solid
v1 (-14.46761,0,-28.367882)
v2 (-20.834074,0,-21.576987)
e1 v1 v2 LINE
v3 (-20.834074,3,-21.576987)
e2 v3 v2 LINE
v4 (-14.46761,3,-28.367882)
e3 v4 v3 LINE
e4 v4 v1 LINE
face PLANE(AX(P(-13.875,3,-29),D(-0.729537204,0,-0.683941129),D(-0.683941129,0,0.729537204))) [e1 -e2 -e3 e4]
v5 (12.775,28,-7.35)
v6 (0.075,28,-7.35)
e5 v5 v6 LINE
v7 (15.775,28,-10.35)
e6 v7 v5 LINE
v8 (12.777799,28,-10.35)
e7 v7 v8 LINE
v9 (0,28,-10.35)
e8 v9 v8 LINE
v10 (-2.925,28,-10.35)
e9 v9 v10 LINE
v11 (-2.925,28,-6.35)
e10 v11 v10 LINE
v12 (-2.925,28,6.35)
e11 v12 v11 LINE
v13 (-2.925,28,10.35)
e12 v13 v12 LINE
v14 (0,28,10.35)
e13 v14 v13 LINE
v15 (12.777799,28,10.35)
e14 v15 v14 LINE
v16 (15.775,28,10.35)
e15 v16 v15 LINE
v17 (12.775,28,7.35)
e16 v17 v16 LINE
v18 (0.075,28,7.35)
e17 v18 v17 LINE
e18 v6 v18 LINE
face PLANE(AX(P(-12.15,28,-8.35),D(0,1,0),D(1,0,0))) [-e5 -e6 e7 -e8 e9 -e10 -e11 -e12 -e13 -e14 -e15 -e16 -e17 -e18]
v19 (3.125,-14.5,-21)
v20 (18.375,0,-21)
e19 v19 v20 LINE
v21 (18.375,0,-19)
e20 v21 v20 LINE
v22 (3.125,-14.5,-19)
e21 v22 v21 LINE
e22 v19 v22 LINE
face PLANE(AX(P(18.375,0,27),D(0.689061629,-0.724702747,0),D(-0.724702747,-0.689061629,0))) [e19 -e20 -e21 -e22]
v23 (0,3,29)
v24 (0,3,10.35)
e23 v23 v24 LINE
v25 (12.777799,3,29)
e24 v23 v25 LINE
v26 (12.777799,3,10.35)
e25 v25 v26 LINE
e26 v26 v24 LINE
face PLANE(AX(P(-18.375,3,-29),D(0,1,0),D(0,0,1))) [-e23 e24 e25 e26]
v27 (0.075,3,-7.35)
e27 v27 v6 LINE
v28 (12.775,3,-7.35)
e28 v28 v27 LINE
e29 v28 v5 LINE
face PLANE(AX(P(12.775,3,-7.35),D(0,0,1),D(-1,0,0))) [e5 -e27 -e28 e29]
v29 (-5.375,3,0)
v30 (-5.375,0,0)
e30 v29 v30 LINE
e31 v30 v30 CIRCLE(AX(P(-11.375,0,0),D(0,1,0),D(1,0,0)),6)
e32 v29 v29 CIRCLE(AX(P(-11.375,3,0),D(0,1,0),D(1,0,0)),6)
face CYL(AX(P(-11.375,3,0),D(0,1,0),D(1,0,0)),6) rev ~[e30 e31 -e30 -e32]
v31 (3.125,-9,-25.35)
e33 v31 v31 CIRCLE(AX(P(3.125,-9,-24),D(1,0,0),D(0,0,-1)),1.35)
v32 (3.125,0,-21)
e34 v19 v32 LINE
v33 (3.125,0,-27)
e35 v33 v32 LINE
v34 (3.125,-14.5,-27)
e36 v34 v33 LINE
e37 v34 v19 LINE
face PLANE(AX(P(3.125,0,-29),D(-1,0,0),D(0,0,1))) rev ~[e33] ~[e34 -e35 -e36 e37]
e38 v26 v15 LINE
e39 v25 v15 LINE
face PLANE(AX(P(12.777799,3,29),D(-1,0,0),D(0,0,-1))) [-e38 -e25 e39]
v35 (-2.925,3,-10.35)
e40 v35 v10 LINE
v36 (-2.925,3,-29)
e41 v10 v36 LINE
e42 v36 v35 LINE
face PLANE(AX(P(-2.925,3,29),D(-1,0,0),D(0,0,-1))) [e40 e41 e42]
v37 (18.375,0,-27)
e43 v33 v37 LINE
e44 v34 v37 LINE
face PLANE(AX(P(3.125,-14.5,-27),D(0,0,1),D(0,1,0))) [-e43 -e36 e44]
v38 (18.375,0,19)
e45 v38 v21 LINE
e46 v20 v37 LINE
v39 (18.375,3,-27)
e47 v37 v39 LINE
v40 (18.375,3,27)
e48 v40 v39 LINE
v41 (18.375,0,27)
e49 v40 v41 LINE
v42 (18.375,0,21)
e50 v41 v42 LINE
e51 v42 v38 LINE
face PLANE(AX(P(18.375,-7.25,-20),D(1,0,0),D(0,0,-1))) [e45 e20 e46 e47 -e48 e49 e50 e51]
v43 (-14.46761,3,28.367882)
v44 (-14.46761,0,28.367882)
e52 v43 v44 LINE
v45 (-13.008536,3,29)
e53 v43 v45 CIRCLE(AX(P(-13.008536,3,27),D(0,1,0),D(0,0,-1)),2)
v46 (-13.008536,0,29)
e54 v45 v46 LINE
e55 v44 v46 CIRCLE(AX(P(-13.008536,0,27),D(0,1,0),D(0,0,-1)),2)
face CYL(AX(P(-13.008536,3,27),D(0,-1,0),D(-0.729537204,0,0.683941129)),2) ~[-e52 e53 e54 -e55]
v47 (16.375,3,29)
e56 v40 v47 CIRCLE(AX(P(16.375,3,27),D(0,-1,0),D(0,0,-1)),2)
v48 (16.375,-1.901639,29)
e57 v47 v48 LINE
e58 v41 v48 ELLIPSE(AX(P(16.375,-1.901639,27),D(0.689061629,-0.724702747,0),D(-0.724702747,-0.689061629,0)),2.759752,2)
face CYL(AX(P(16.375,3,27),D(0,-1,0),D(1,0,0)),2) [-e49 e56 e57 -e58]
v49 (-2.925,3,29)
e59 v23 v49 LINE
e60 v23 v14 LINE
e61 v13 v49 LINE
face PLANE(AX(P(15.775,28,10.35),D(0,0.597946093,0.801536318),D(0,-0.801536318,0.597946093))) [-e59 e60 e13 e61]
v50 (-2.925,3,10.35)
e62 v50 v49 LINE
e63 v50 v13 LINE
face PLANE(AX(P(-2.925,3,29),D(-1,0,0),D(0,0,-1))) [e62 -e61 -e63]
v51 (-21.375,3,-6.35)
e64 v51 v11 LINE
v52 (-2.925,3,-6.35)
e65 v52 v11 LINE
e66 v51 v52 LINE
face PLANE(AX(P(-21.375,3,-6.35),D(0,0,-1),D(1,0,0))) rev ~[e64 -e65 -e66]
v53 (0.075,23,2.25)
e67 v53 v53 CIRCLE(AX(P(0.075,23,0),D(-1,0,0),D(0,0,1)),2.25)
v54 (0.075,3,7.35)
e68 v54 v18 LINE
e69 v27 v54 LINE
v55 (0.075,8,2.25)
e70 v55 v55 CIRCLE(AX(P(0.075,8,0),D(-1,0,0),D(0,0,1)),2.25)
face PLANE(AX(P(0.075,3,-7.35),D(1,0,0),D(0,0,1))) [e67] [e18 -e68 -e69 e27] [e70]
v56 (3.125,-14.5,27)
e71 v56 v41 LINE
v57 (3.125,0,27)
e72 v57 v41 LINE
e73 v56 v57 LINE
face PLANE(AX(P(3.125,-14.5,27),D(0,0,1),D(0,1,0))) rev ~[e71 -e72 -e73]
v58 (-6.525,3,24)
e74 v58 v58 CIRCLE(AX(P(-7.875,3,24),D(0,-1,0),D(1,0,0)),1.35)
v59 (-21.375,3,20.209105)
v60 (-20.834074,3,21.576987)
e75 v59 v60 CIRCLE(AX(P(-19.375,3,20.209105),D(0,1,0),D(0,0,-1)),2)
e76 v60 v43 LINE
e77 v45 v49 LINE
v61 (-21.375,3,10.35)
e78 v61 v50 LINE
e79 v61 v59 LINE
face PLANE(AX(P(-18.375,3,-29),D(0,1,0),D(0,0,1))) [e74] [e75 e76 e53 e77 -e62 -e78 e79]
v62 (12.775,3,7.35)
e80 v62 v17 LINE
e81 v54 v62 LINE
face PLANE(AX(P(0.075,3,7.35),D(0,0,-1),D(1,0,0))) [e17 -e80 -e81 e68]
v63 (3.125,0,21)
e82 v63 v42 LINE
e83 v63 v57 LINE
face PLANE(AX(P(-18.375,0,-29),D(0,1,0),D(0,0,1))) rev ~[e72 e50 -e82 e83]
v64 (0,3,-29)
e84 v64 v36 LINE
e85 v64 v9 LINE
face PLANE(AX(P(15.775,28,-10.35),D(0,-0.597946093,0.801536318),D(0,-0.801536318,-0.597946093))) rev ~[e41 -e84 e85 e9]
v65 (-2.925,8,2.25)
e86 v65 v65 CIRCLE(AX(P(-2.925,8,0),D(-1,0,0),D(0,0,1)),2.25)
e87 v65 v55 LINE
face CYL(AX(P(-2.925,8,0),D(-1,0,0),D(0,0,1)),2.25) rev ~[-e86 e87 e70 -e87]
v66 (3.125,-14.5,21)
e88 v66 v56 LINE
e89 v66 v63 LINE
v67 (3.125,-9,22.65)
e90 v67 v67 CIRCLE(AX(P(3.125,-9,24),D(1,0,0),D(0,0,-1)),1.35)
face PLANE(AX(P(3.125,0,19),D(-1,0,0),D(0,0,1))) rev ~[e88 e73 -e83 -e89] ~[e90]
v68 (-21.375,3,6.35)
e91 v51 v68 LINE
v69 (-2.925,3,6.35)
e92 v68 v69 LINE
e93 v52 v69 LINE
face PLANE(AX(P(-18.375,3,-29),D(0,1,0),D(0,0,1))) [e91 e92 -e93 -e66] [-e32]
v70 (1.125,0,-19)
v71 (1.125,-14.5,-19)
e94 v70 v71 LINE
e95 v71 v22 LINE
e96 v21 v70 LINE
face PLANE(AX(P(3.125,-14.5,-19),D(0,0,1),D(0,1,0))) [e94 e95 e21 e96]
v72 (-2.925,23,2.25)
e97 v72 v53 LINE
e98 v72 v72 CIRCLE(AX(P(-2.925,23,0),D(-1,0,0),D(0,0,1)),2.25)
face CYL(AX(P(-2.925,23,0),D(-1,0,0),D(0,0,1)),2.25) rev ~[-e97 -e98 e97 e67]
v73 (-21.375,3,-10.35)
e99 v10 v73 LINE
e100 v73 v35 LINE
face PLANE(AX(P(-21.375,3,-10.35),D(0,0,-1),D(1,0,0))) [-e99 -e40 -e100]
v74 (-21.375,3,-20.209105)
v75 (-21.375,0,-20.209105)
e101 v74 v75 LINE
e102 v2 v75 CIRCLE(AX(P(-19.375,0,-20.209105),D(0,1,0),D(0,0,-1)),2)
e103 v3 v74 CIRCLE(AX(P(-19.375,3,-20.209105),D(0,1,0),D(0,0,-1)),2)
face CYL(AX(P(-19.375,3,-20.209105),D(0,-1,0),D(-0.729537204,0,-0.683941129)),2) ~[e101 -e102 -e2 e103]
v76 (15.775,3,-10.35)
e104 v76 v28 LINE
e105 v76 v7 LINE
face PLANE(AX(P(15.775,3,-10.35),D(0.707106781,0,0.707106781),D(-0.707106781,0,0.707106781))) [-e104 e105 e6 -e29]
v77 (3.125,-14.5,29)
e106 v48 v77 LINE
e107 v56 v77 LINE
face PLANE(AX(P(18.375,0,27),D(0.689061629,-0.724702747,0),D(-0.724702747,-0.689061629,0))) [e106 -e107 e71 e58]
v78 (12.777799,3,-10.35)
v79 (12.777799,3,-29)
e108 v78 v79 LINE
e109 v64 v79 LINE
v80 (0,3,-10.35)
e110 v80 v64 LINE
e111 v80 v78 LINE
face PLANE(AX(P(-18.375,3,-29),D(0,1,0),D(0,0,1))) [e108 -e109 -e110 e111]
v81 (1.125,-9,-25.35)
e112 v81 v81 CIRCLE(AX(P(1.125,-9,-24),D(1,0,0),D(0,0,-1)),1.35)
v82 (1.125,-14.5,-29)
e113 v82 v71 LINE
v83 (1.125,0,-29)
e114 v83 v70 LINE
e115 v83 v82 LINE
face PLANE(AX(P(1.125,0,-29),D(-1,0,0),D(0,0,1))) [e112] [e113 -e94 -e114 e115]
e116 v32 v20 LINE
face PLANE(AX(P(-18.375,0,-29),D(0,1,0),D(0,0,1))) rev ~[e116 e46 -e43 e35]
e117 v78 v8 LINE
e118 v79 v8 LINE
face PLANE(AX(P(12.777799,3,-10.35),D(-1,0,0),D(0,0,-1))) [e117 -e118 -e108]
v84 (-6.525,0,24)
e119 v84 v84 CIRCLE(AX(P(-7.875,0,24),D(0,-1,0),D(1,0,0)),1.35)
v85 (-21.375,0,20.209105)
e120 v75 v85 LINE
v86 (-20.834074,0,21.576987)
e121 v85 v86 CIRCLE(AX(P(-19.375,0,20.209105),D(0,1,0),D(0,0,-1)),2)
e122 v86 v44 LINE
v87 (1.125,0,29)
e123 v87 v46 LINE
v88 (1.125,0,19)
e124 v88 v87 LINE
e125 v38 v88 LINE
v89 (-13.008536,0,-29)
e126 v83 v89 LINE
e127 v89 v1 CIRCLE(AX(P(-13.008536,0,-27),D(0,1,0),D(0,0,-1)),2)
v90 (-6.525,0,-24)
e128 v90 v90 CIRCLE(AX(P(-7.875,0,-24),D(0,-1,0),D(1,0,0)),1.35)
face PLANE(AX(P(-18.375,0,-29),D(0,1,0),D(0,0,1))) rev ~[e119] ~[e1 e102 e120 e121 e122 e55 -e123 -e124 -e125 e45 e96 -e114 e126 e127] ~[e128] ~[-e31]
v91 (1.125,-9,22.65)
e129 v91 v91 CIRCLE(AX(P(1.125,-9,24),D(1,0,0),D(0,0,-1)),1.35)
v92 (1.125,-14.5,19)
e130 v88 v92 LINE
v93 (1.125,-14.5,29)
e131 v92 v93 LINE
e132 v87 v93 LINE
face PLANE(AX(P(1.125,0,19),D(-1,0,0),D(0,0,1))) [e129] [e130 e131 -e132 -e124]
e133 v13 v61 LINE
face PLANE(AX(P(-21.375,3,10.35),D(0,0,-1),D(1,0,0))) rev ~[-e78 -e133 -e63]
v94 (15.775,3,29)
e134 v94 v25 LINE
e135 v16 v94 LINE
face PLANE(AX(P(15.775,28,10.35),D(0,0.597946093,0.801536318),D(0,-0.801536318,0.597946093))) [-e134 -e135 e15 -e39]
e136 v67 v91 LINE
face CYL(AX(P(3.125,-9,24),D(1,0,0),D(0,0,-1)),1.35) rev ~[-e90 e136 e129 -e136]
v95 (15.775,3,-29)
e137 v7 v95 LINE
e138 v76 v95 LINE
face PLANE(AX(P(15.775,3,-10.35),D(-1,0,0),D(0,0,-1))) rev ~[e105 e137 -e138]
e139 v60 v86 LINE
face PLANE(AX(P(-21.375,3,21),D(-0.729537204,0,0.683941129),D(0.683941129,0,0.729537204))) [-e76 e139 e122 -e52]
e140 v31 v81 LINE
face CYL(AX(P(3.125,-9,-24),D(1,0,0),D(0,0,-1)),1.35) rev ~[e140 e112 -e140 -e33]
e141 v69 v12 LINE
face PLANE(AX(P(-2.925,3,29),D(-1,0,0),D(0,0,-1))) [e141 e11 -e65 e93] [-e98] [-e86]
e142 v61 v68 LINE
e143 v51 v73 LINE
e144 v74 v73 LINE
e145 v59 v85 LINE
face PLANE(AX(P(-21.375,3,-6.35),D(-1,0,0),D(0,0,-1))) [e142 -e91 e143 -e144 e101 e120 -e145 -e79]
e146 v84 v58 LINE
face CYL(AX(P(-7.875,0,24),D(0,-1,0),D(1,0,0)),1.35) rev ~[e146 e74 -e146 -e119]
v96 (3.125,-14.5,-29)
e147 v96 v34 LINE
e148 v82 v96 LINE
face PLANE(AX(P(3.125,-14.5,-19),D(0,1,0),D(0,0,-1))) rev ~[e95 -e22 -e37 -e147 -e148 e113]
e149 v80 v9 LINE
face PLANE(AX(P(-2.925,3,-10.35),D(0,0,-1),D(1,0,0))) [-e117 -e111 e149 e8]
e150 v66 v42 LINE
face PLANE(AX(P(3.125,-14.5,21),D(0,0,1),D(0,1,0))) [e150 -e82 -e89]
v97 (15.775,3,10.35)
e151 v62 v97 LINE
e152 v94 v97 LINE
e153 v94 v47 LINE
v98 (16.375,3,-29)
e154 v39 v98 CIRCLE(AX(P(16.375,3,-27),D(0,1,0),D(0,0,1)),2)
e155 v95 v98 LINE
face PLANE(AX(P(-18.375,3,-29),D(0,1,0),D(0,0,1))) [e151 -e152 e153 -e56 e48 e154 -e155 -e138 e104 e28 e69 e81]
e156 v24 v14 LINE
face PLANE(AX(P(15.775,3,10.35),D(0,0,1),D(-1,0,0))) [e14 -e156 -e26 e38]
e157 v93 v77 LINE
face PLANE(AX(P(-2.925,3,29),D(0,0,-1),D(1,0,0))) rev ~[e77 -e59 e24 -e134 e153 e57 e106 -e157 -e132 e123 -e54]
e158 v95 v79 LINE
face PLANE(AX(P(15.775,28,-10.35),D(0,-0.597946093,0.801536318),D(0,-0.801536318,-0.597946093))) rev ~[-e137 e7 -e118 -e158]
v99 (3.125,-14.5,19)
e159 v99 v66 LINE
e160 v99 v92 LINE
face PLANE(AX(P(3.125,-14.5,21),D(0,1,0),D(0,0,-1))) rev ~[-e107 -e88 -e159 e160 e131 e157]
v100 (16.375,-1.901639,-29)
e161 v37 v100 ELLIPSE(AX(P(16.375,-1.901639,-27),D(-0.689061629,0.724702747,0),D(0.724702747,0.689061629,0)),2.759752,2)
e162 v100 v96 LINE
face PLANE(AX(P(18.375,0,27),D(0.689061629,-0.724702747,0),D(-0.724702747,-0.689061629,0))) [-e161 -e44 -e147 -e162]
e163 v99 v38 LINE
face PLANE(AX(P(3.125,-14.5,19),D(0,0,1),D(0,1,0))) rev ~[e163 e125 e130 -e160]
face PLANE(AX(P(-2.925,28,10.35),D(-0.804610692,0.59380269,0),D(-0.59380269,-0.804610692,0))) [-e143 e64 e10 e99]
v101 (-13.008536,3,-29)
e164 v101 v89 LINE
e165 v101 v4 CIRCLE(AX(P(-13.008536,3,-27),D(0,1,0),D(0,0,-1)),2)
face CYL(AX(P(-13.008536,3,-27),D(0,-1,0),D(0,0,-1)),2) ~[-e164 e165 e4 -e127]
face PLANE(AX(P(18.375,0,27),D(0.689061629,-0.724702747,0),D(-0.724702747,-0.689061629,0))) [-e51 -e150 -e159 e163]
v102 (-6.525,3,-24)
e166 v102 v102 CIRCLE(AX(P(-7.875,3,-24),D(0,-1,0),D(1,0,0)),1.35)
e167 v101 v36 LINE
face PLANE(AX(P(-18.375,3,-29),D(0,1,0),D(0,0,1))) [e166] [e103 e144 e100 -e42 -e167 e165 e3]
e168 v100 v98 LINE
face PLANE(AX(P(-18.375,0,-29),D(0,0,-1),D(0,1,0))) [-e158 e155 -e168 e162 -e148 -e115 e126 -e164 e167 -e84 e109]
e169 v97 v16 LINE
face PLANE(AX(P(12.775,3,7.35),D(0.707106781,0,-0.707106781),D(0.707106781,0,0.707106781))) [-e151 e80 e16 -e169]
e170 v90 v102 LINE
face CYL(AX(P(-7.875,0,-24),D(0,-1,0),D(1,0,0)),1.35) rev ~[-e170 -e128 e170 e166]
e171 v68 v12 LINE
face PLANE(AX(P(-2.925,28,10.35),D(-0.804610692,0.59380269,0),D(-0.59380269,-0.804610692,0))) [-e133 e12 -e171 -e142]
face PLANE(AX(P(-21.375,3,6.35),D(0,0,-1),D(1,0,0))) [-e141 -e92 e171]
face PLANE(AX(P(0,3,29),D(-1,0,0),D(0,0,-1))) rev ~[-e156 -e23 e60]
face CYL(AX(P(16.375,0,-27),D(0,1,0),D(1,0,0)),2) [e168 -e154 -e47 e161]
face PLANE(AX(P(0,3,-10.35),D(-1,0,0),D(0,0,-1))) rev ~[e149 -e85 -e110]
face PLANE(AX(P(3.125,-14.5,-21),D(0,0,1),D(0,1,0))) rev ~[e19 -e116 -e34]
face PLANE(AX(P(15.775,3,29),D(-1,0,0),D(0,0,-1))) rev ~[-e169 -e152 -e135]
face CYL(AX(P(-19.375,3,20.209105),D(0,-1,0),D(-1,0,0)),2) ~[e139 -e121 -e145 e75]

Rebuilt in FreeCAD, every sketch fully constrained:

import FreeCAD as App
import Part
import Sketcher

V = App.Vector


def edges_at(feature, points):
    """Names of the edges that pass closest to the given points."""
    edges = feature.Shape.Edges
    near = lambda p: min(range(len(edges)), key=lambda i: edges[i].distToShape(Part.Vertex(*p))[0])
    return sorted({f"Edge{near(p) + 1}" for p in points})

doc = App.newDocument("Part")
body = doc.addObject("PartDesign::Body", "Body")

# Sketch on XZ plane
sketch1 = body.newObject("Sketcher::SketchObject", "Sketch")
sketch1.AttachmentSupport = (doc.getObject("XZ_Plane"), [""])
sketch1.MapMode = "FlatFace"
sketch1.addGeometry([
    Part.LineSegment(V(-18, -29, 0), V(-18, 29, 0)),
    Part.LineSegment(V(-18, 29, 0), V(18, 29, 0)),
    Part.LineSegment(V(18, 29, 0), V(18, -29, 0)),
    Part.LineSegment(V(18, -29, 0), V(-18, -29, 0)),
], False)
sketch1.addConstraint([
    Sketcher.Constraint("Coincident", 0, 2, 1, 1),
    Sketcher.Constraint("Coincident", 1, 2, 2, 1),
    Sketcher.Constraint("Coincident", 2, 2, 3, 1),
    Sketcher.Constraint("Coincident", 3, 2, 0, 1),
    Sketcher.Constraint("Vertical", 0),
    Sketcher.Constraint("Horizontal", 1),
    Sketcher.Constraint("Vertical", 2),
    Sketcher.Constraint("Horizontal", 3),
    Sketcher.Constraint("Symmetric", 0, 2, 2, 2, -1, 1),
    Sketcher.Constraint("DistanceY", 0, 1, 0, 2, 58.0),
    Sketcher.Constraint("DistanceX", 1, 1, 1, 2, 36.75),
])
pad1 = body.newObject("PartDesign::Pad", "Pad")
pad1.Profile = sketch1
pad1.Length = 3
pad1.Reversed = True

# Sketch on XZ plane
sketch2 = body.newObject("Sketcher::SketchObject", "Sketch001")
sketch2.AttachmentSupport = (doc.getObject("XZ_Plane"), [""])
sketch2.MapMode = "FlatFace"
sketch2.addGeometry([
    Part.LineSegment(V(1.1, 29, 0), V(1.1, 19, 0)),  # 0
    Part.LineSegment(V(1.1, 19, 0), V(3.1, 19, 0)),  # 1
    Part.LineSegment(V(3.1, 19, 0), V(3.1, 29, 0)),  # 2
    Part.LineSegment(V(3.1, 29, 0), V(1.1, 29, 0)),  # 3
    Part.LineSegment(V(1.1, -19, 0), V(1.1, -29, 0)),  # 4
    Part.LineSegment(V(1.1, -29, 0), V(3.1, -29, 0)),  # 5
    Part.LineSegment(V(3.1, -29, 0), V(3.1, -19, 0)),  # 6
    Part.LineSegment(V(3.1, -19, 0), V(1.1, -19, 0)),  # 7
], False)
sketch2.addConstraint([
    Sketcher.Constraint("Coincident", 0, 2, 1, 1),
    Sketcher.Constraint("Coincident", 1, 2, 2, 1),
    Sketcher.Constraint("Coincident", 2, 2, 3, 1),
    Sketcher.Constraint("Coincident", 3, 2, 0, 1),
    Sketcher.Constraint("Coincident", 4, 2, 5, 1),
    Sketcher.Constraint("Coincident", 5, 2, 6, 1),
    Sketcher.Constraint("Coincident", 6, 2, 7, 1),
    Sketcher.Constraint("Coincident", 7, 2, 4, 1),
    Sketcher.Constraint("Vertical", 0),
    Sketcher.Constraint("Horizontal", 1),
    Sketcher.Constraint("Vertical", 2),
    Sketcher.Constraint("Horizontal", 3),
    Sketcher.Constraint("Vertical", 4),
    Sketcher.Constraint("Horizontal", 5),
    Sketcher.Constraint("Vertical", 6),
    Sketcher.Constraint("Horizontal", 7),
    Sketcher.Constraint("Symmetric", 3, 2, 4, 2, -1),
    Sketcher.Constraint("Symmetric", 1, 2, 6, 2, -1),
    Sketcher.Constraint("DistanceX", 1, 1, 1, 2, 2.0),
    Sketcher.Constraint("DistanceY", 0, 2, 0, 1, 10.0),
    Sketcher.Constraint("DistanceY", -1, 1, 0, 2, 19.0),
    Sketcher.Constraint("DistanceX", -1, 1, 0, 2, 1.125),
])
pad2 = body.newObject("PartDesign::Pad", "Pad001")
pad2.Profile = sketch2
pad2.Length = 14.5

# Sketch on YZ plane
sketch3 = body.newObject("Sketcher::SketchObject", "Sketch002")
sketch3.AttachmentSupport = (doc.getObject("YZ_Plane"), [""])
sketch3.MapMode = "FlatFace"
sketch3.AttachmentOffset = App.Placement(V(0, 0, 3.125), App.Rotation())
sketch3.addGeometry([
    Part.Circle(V(-9, 24, 0), V(0, 0, 1), 1.4),
    Part.Circle(V(-9, -24, 0), V(0, 0, 1), 1.4),
], False)
sketch3.addConstraint([
    Sketcher.Constraint("Equal", 0, 1),
    Sketcher.Constraint("Symmetric", 0, 3, 1, 3, -1),
    Sketcher.Constraint("Diameter", 0, 2.7),
    Sketcher.Constraint("DistanceX", 0, 3, -1, 1, 9.0),
    Sketcher.Constraint("DistanceY", -1, 1, 0, 3, 24.0),
])
pocket1 = body.newObject("PartDesign::Pocket", "Pocket")
pocket1.Profile = sketch3
pocket1.Length = 2

# Sketch on XZ plane
sketch4 = body.newObject("Sketcher::SketchObject", "Sketch003")
sketch4.AttachmentSupport = (doc.getObject("XZ_Plane"), [""])
sketch4.MapMode = "FlatFace"
sketch4.AttachmentOffset = App.Placement(V(0, 0, -3), App.Rotation())
sketch4.addGeometry([
    Part.LineSegment(V(0.1, -7.3, 0), V(12.8, -7.3, 0)),  # 0
    Part.LineSegment(V(12.8, -7.3, 0), V(15.8, -10.3, 0)),  # 1
    Part.LineSegment(V(15.8, -10.3, 0), V(-2.9, -10.3, 0)),  # 2
    Part.LineSegment(V(-2.9, -10.3, 0), V(-2.9, 10.3, 0)),  # 3
    Part.LineSegment(V(-2.9, 10.3, 0), V(15.8, 10.3, 0)),  # 4
    Part.LineSegment(V(15.8, 10.3, 0), V(12.8, 7.3, 0)),  # 5
    Part.LineSegment(V(12.8, 7.3, 0), V(0.1, 7.3, 0)),  # 6
    Part.LineSegment(V(0.1, 7.3, 0), V(0.1, -7.3, 0)),  # 7
], False)
sketch4.addConstraint([
    Sketcher.Constraint("Coincident", 0, 2, 1, 1),
    Sketcher.Constraint("Coincident", 1, 2, 2, 1),
    Sketcher.Constraint("Coincident", 2, 2, 3, 1),
    Sketcher.Constraint("Coincident", 3, 2, 4, 1),
    Sketcher.Constraint("Coincident", 4, 2, 5, 1),
    Sketcher.Constraint("Coincident", 5, 2, 6, 1),
    Sketcher.Constraint("Coincident", 6, 2, 7, 1),
    Sketcher.Constraint("Coincident", 7, 2, 0, 1),
    Sketcher.Constraint("Horizontal", 0),
    Sketcher.Constraint("Horizontal", 2),
    Sketcher.Constraint("Vertical", 3),
    Sketcher.Constraint("Horizontal", 4),
    Sketcher.Constraint("Horizontal", 6),
    Sketcher.Constraint("Vertical", 7),
    Sketcher.Constraint("Symmetric", 1, 2, 4, 2, -1),
    Sketcher.Constraint("Symmetric", 0, 2, 5, 2, -1),
    Sketcher.Constraint("Perpendicular", 1, 5),
    Sketcher.Constraint("DistanceX", 0, 1, 0, 2, 12.7),
    Sketcher.Constraint("DistanceX", 2, 2, 2, 1, 18.7),
    Sketcher.Constraint("DistanceY", 3, 1, 3, 2, 20.7),
    Sketcher.Constraint("DistanceY", 7, 2, 7, 1, 14.7),
    Sketcher.Constraint("DistanceX", -1, 1, 0, 2, 12.775),
])
pad3 = body.newObject("PartDesign::Pad", "Pad002")
pad3.Profile = sketch4
pad3.Length = 25
pad3.Reversed = True

# Sketch on YZ plane
sketch5 = body.newObject("Sketcher::SketchObject", "Sketch004")
sketch5.AttachmentSupport = (doc.getObject("YZ_Plane"), [""])
sketch5.MapMode = "FlatFace"
sketch5.AttachmentOffset = App.Placement(V(0, 0, -2.925), App.Rotation())
sketch5.addGeometry([
    Part.Circle(V(8, 0, 0), V(0, 0, 1), 2.2),
    Part.Circle(V(23, 0, 0), V(0, 0, 1), 2.2),
], False)
sketch5.addConstraint([
    Sketcher.Constraint("Equal", 0, 1),
    Sketcher.Constraint("PointOnObject", 0, 3, -1),
    Sketcher.Constraint("PointOnObject", 1, 3, -1),
    Sketcher.Constraint("Diameter", 0, 4.5),
    Sketcher.Constraint("DistanceX", -1, 1, 0, 3, 8.0),
    Sketcher.Constraint("DistanceX", -1, 1, 1, 3, 23.0),
])
pocket2 = body.newObject("PartDesign::Pocket", "Pocket001")
pocket2.Profile = sketch5
pocket2.Length = 3
pocket2.Reversed = True

# Sketch on YZ plane
sketch6 = body.newObject("Sketcher::SketchObject", "Sketch005")
sketch6.AttachmentSupport = (doc.getObject("YZ_Plane"), [""])
sketch6.MapMode = "FlatFace"
sketch6.AttachmentOffset = App.Placement(V(0, 0, -18.375), App.Rotation())
sketch6.addGeometry([
    Part.LineSegment(V(3, -29, 0), V(0, -29, 0)),
    Part.LineSegment(V(0, -29, 0), V(0, 29, 0)),
    Part.LineSegment(V(0, 29, 0), V(3, 29, 0)),
    Part.LineSegment(V(3, 29, 0), V(3, -29, 0)),
], False)
sketch6.addConstraint([
    Sketcher.Constraint("Coincident", 0, 2, 1, 1),
    Sketcher.Constraint("Coincident", 1, 2, 2, 1),
    Sketcher.Constraint("Coincident", 2, 2, 3, 1),
    Sketcher.Constraint("Coincident", 3, 2, 0, 1),
    Sketcher.Constraint("Horizontal", 0),
    Sketcher.Constraint("Vertical", 1),
    Sketcher.Constraint("Horizontal", 2),
    Sketcher.Constraint("Vertical", 3),
    Sketcher.Constraint("Symmetric", 0, 2, 1, 2, -1, 1),
    Sketcher.Constraint("DistanceX", 0, 2, 0, 1, 3.0),
    Sketcher.Constraint("DistanceY", 1, 1, 1, 2, 58.0),
])
pad4 = body.newObject("PartDesign::Pad", "Pad003")
pad4.Profile = sketch6
pad4.Length = 3
pad4.Reversed = True

# Sketch on XZ plane
sketch7 = body.newObject("Sketcher::SketchObject", "Sketch006")
sketch7.AttachmentSupport = (doc.getObject("XZ_Plane"), [""])
sketch7.MapMode = "FlatFace"
sketch7.AttachmentOffset = App.Placement(V(0, 0, -3), App.Rotation())
sketch7.addGeometry(Part.Circle(V(-11, 0, 0), V(0, 0, 1), 6), False)
sketch7.addConstraint([
    Sketcher.Constraint("PointOnObject", 0, 3, -1),
    Sketcher.Constraint("Diameter", 0, 12.0),
    Sketcher.Constraint("DistanceX", 0, 3, -1, 1, 11.375),
])
pocket3 = body.newObject("PartDesign::Pocket", "Pocket002")
pocket3.Profile = sketch7
pocket3.Length = 3
pocket3.Reversed = True

# Sketch on XZ plane
sketch8 = body.newObject("Sketcher::SketchObject", "Sketch007")
sketch8.AttachmentSupport = (doc.getObject("XZ_Plane"), [""])
sketch8.MapMode = "FlatFace"
sketch8.AttachmentOffset = App.Placement(V(0, 0, -3), App.Rotation())
sketch8.addGeometry([
    Part.LineSegment(V(-21.4, 21, 0), V(-21.4, -21, 0)),  # 0
    Part.LineSegment(V(-21.4, -21, 0), V(-13.9, -29, 0)),  # 1
    Part.LineSegment(V(-13.9, -29, 0), V(-13.9, -36.1, 0)),  # 2
    Part.LineSegment(V(-13.9, -36.1, 0), V(-41.6, -35.8, 0)),  # 3
    Part.LineSegment(V(-41.6, -35.8, 0), V(-32.6, 32.6, 0)),  # 4
    Part.LineSegment(V(-32.6, 32.6, 0), V(-11.2, 32.6, 0)),  # 5
    Part.LineSegment(V(-11.2, 32.6, 0), V(-13.9, 29, 0)),  # 6
    Part.LineSegment(V(-13.9, 29, 0), V(-21.4, 21, 0)),  # 7
], False)
sketch8.addConstraint([
    Sketcher.Constraint("Coincident", 0, 2, 1, 1),
    Sketcher.Constraint("Coincident", 1, 2, 2, 1),
    Sketcher.Constraint("Coincident", 2, 2, 3, 1),
    Sketcher.Constraint("Coincident", 3, 2, 4, 1),
    Sketcher.Constraint("Coincident", 4, 2, 5, 1),
    Sketcher.Constraint("Coincident", 5, 2, 6, 1),
    Sketcher.Constraint("Coincident", 6, 2, 7, 1),
    Sketcher.Constraint("Coincident", 7, 2, 0, 1),
    Sketcher.Constraint("Vertical", 0),
    Sketcher.Constraint("Vertical", 2),
    Sketcher.Constraint("Horizontal", 5),
    Sketcher.Constraint("Symmetric", 1, 2, 6, 2, -1),
    Sketcher.Constraint("Equal", 1, 7),
    Sketcher.Constraint("DistanceY", 0, 2, 0, 1, 42.0),
    Sketcher.Constraint("DistanceY", 1, 2, -1, 1, 29.0),
    Sketcher.Constraint("DistanceX", 0, 2, 1, 2, 7.5),
    Sketcher.Constraint("DistanceX", 0, 2, -1, 1, 21.375),
    Sketcher.Constraint("DistanceY", 3, 2, -1, 1, 35.783998),
    Sketcher.Constraint("DistanceX", 5, 1, 5, 2, 21.393761),
    Sketcher.Constraint("Distance", 3, 27.76894),
    Sketcher.Constraint("DistanceY", 2, 2, 2, 1, 7.078996),
    Sketcher.Constraint("DistanceX", 4, 2, -1, 1, 32.637528),
    Sketcher.Constraint("Distance", 4, 68.961064),
])
pocket4 = body.newObject("PartDesign::Pocket", "Pocket003")
pocket4.Profile = sketch8
pocket4.Length = 3
pocket4.Reversed = True

# Sketch on YZ plane
sketch9 = body.newObject("Sketcher::SketchObject", "Sketch008")
sketch9.AttachmentSupport = (doc.getObject("YZ_Plane"), [""])
sketch9.MapMode = "FlatFace"
sketch9.AttachmentOffset = App.Placement(V(0, 0, 3.125), App.Rotation())
sketch9.addGeometry([
    Part.LineSegment(V(0, -19, 0), V(-14.5, -19, 0)),  # 0
    Part.LineSegment(V(-14.5, -19, 0), V(-14.5, -21, 0)),  # 1
    Part.LineSegment(V(-14.5, -21, 0), V(0, -21, 0)),  # 2
    Part.LineSegment(V(0, -21, 0), V(0, -19, 0)),  # 3
    Part.LineSegment(V(0, -27, 0), V(-14.5, -27, 0)),  # 4
    Part.LineSegment(V(-14.5, -27, 0), V(-14.5, -29, 0)),  # 5
    Part.LineSegment(V(-14.5, -29, 0), V(0, -29, 0)),  # 6
    Part.LineSegment(V(0, -29, 0), V(0, -27, 0)),  # 7
    Part.LineSegment(V(0, 29, 0), V(-14.5, 29, 0)),  # 8
    Part.LineSegment(V(-14.5, 29, 0), V(-14.5, 27, 0)),  # 9
    Part.LineSegment(V(-14.5, 27, 0), V(0, 27, 0)),  # 10
    Part.LineSegment(V(0, 27, 0), V(0, 29, 0)),  # 11
    Part.LineSegment(V(0, 21, 0), V(-14.5, 21, 0)),  # 12
    Part.LineSegment(V(-14.5, 21, 0), V(-14.5, 19, 0)),  # 13
    Part.LineSegment(V(-14.5, 19, 0), V(0, 19, 0)),  # 14
    Part.LineSegment(V(0, 19, 0), V(0, 21, 0)),  # 15
], False)
sketch9.addConstraint([
    Sketcher.Constraint("Coincident", 0, 2, 1, 1),
    Sketcher.Constraint("Coincident", 1, 2, 2, 1),
    Sketcher.Constraint("Coincident", 2, 2, 3, 1),
    Sketcher.Constraint("Coincident", 3, 2, 0, 1),
    Sketcher.Constraint("Coincident", 4, 2, 5, 1),
    Sketcher.Constraint("Coincident", 5, 2, 6, 1),
    Sketcher.Constraint("Coincident", 6, 2, 7, 1),
    Sketcher.Constraint("Coincident", 7, 2, 4, 1),
    Sketcher.Constraint("Coincident", 8, 2, 9, 1),
    Sketcher.Constraint("Coincident", 9, 2, 10, 1),
    Sketcher.Constraint("Coincident", 10, 2, 11, 1),
    Sketcher.Constraint("Coincident", 11, 2, 8, 1),
    Sketcher.Constraint("Coincident", 12, 2, 13, 1),
    Sketcher.Constraint("Coincident", 13, 2, 14, 1),
    Sketcher.Constraint("Coincident", 14, 2, 15, 1),
    Sketcher.Constraint("Coincident", 15, 2, 12, 1),
    Sketcher.Constraint("Horizontal", 0),
    Sketcher.Constraint("Vertical", 1),
    Sketcher.Constraint("Horizontal", 2),
    Sketcher.Constraint("Vertical", 3),
    Sketcher.Constraint("Horizontal", 4),
    Sketcher.Constraint("Vertical", 5),
    Sketcher.Constraint("Horizontal", 6),
    Sketcher.Constraint("Vertical", 7),
    Sketcher.Constraint("Horizontal", 8),
    Sketcher.Constraint("Vertical", 9),
    Sketcher.Constraint("Horizontal", 10),
    Sketcher.Constraint("Vertical", 11),
    Sketcher.Constraint("Horizontal", 12),
    Sketcher.Constraint("Vertical", 13),
    Sketcher.Constraint("Horizontal", 14),
    Sketcher.Constraint("Vertical", 15),
    Sketcher.Constraint("Symmetric", 7, 2, 10, 2, -1, 1),
    Sketcher.Constraint("Symmetric", 3, 2, 14, 2, -1, 1),
    Sketcher.Constraint("Symmetric", 5, 2, 8, 2, -1),
    Sketcher.Constraint("Symmetric", 1, 2, 12, 2, -1),
    Sketcher.Constraint("PointOnObject", 2, 2, -2),
    Sketcher.Constraint("PointOnObject", 6, 2, -2),
    Sketcher.Constraint("Vertical", 1, 2, 4, 2),
    Sketcher.Constraint("Equal", 3, 5),
    Sketcher.Constraint("DistanceY", 1, 2, 1, 1, 2.0),
    Sketcher.Constraint("DistanceX", 0, 2, 0, 1, 14.5),
    Sketcher.Constraint("DistanceY", 0, 2, -1, 1, 19.0),
    Sketcher.Constraint("DistanceY", 4, 2, -1, 1, 27.0),
])
pad5 = body.newObject("PartDesign::Pad", "Pad004")
pad5.Profile = sketch9
pad5.Length = 15.25

# Sketch on XY plane
sketch10 = body.newObject("Sketcher::SketchObject", "Sketch009")
sketch10.AttachmentSupport = (doc.getObject("XY_Plane"), [""])
sketch10.MapMode = "FlatFace"
sketch10.AttachmentOffset = App.Placement(V(0, 0, 27), App.Rotation())
sketch10.addGeometry([
    Part.LineSegment(V(3, -14, 0), V(18, 0, 0)),  # 0
    Part.LineSegment(V(18, 0, 0), V(28, 1, 0)),  # 1
    Part.LineSegment(V(28, 1, 0), V(24, -22, 0)),  # 2
    Part.LineSegment(V(24, -22, 0), V(4, -23, 0)),  # 3
    Part.LineSegment(V(4, -23, 0), V(3, -14, 0)),  # 4
], False)
sketch10.addConstraint([
    Sketcher.Constraint("Coincident", 0, 2, 1, 1),
    Sketcher.Constraint("Coincident", 1, 2, 2, 1),
    Sketcher.Constraint("Coincident", 2, 2, 3, 1),
    Sketcher.Constraint("Coincident", 3, 2, 4, 1),
    Sketcher.Constraint("Coincident", 4, 2, 0, 1),
    Sketcher.Constraint("PointOnObject", 0, 2, -1),
    Sketcher.Constraint("DistanceY", 4, 2, -1, 1, 14.5),
    Sketcher.Constraint("DistanceX", 4, 2, 0, 2, 15.25),
    Sketcher.Constraint("DistanceX", -1, 1, 0, 2, 18.375),
    Sketcher.Constraint("Distance", 1, 9.3514),
    Sketcher.Constraint("Distance", 4, 8.70329),
    Sketcher.Constraint("DistanceY", -1, 1, 1, 2, 0.85574),
    Sketcher.Constraint("DistanceY", 3, 2, -1, 1, 23.175648),
    Sketcher.Constraint("DistanceY", 2, 2, 1, 2, 22.991138),
    Sketcher.Constraint("Distance", 2, 23.239408),
])
pocket5 = body.newObject("PartDesign::Pocket", "Pocket004")
pocket5.Profile = sketch10
pocket5.Length = 160
pocket5.Midplane = True

# Sketch on XZ plane
sketch11 = body.newObject("Sketcher::SketchObject", "Sketch010")
sketch11.AttachmentSupport = (doc.getObject("XZ_Plane"), [""])
sketch11.MapMode = "FlatFace"
sketch11.addGeometry([
    Part.Circle(V(-7.9, 24, 0), V(0, 0, 1), 1.4),
    Part.Circle(V(-7.9, -24, 0), V(0, 0, 1), 1.4),
], False)
sketch11.addConstraint([
    Sketcher.Constraint("Equal", 0, 1),
    Sketcher.Constraint("Symmetric", 0, 3, 1, 3, -1),
    Sketcher.Constraint("Diameter", 0, 2.7),
    Sketcher.Constraint("DistanceY", -1, 1, 0, 3, 24.0),
    Sketcher.Constraint("DistanceX", 0, 3, -1, 1, 7.875),
])
pocket6 = body.newObject("PartDesign::Pocket", "Pocket005")
pocket6.Profile = sketch11
pocket6.Length = 3
doc.recompute()

fillet = body.newObject("PartDesign::Fillet", "Fillet")
fillet.Base = (pocket6, edges_at(pocket6, [
    (-21.375, 1.5, 21),
    (-13.875, 1.5, 29),
    (-21.375, 1.5, -21),
    (-13.875, 1.5, -29),
    (18.375, 1.5, 29),
    (18.375, 1.5, -29),
]))
fillet.Radius = 2

# Sketch on XZ plane
sketch12 = body.newObject("Sketcher::SketchObject", "Sketch011")
sketch12.AttachmentSupport = (doc.getObject("XZ_Plane"), [""])
sketch12.MapMode = "FlatFace"
sketch12.AttachmentOffset = App.Placement(V(0, 0, -3), App.Rotation())
sketch12.addGeometry([
    Part.LineSegment(V(-2.9, 10.3, 0), V(-2.9, 29, 0)),  # 0
    Part.LineSegment(V(-2.9, 29, 0), V(0, 29, 0)),  # 1
    Part.LineSegment(V(0, 29, 0), V(0, 10.3, 0)),  # 2
    Part.LineSegment(V(0, 10.3, 0), V(-2.9, 10.3, 0)),  # 3
    Part.LineSegment(V(12.8, 10.3, 0), V(12.8, 29, 0)),  # 4
    Part.LineSegment(V(12.8, 29, 0), V(15.8, 29, 0)),  # 5
    Part.LineSegment(V(15.8, 29, 0), V(15.8, 10.3, 0)),  # 6
    Part.LineSegment(V(15.8, 10.3, 0), V(12.8, 10.3, 0)),  # 7
    Part.LineSegment(V(-2.9, -29, 0), V(-2.9, -10.3, 0)),  # 8
    Part.LineSegment(V(-2.9, -10.3, 0), V(0, -10.3, 0)),  # 9
    Part.LineSegment(V(0, -10.3, 0), V(0, -29, 0)),  # 10
    Part.LineSegment(V(0, -29, 0), V(-2.9, -29, 0)),  # 11
    Part.LineSegment(V(12.8, -29, 0), V(12.8, -10.3, 0)),  # 12
    Part.LineSegment(V(12.8, -10.3, 0), V(15.8, -10.3, 0)),  # 13
    Part.LineSegment(V(15.8, -10.3, 0), V(15.8, -29, 0)),  # 14
    Part.LineSegment(V(15.8, -29, 0), V(12.8, -29, 0)),  # 15
], False)
sketch12.addConstraint([
    Sketcher.Constraint("Coincident", 0, 2, 1, 1),
    Sketcher.Constraint("Coincident", 1, 2, 2, 1),
    Sketcher.Constraint("Coincident", 2, 2, 3, 1),
    Sketcher.Constraint("Coincident", 3, 2, 0, 1),
    Sketcher.Constraint("Coincident", 4, 2, 5, 1),
    Sketcher.Constraint("Coincident", 5, 2, 6, 1),
    Sketcher.Constraint("Coincident", 6, 2, 7, 1),
    Sketcher.Constraint("Coincident", 7, 2, 4, 1),
    Sketcher.Constraint("Coincident", 8, 2, 9, 1),
    Sketcher.Constraint("Coincident", 9, 2, 10, 1),
    Sketcher.Constraint("Coincident", 10, 2, 11, 1),
    Sketcher.Constraint("Coincident", 11, 2, 8, 1),
    Sketcher.Constraint("Coincident", 12, 2, 13, 1),
    Sketcher.Constraint("Coincident", 13, 2, 14, 1),
    Sketcher.Constraint("Coincident", 14, 2, 15, 1),
    Sketcher.Constraint("Coincident", 15, 2, 12, 1),
    Sketcher.Constraint("Vertical", 0),
    Sketcher.Constraint("Horizontal", 1),
    Sketcher.Constraint("Vertical", 2),
    Sketcher.Constraint("Horizontal", 3),
    Sketcher.Constraint("Vertical", 4),
    Sketcher.Constraint("Horizontal", 5),
    Sketcher.Constraint("Vertical", 6),
    Sketcher.Constraint("Horizontal", 7),
    Sketcher.Constraint("Vertical", 8),
    Sketcher.Constraint("Horizontal", 9),
    Sketcher.Constraint("Vertical", 10),
    Sketcher.Constraint("Horizontal", 11),
    Sketcher.Constraint("Vertical", 12),
    Sketcher.Constraint("Horizontal", 13),
    Sketcher.Constraint("Vertical", 14),
    Sketcher.Constraint("Horizontal", 15),
    Sketcher.Constraint("Symmetric", 2, 2, 9, 2, -1, 1),
    Sketcher.Constraint("Symmetric", 1, 2, 10, 2, -1),
    Sketcher.Constraint("Symmetric", 7, 2, 12, 2, -1),
    Sketcher.Constraint("Symmetric", 5, 2, 14, 2, -1),
    Sketcher.Constraint("Horizontal", 1, 2, 4, 2),
    Sketcher.Constraint("Horizontal", 3, 2, 6, 2),
    Sketcher.Constraint("Vertical", 3, 2, 8, 2),
    Sketcher.Constraint("DistanceY", -1, 1, 0, 2, 29.0),
    Sketcher.Constraint("DistanceY", 0, 1, 0, 2, 18.65),
    Sketcher.Constraint("DistanceX", 0, 2, 5, 2, 18.7),
    Sketcher.Constraint("DistanceX", 1, 1, 1, 2, 2.925),
    Sketcher.Constraint("DistanceX", 5, 1, 5, 2, 2.997201),
])
pad6 = body.newObject("PartDesign::Pad", "Pad005")
pad6.Profile = sketch12
pad6.Length = 25
pad6.Reversed = True

# Sketch on YZ plane
sketch13 = body.newObject("Sketcher::SketchObject", "Sketch012")
sketch13.AttachmentSupport = (doc.getObject("YZ_Plane"), [""])
sketch13.MapMode = "FlatFace"
sketch13.AttachmentOffset = App.Placement(V(0, 0, 15.775), App.Rotation())
sketch13.addGeometry([
    Part.LineSegment(V(3, 29, 0), V(28, 10.3, 0)),  # 0
    Part.LineSegment(V(28, 10.3, 0), V(32.4, 10.3, 0)),  # 1
    Part.LineSegment(V(32.4, 10.3, 0), V(32.4, 37.6, 0)),  # 2
    Part.LineSegment(V(32.4, 37.6, 0), V(3, 37.6, 0)),  # 3
    Part.LineSegment(V(3, 37.6, 0), V(3, 29, 0)),  # 4
    Part.LineSegment(V(32.4, -37.6, 0), V(32.4, -10.3, 0)),  # 5
    Part.LineSegment(V(32.4, -10.3, 0), V(28, -10.3, 0)),  # 6
    Part.LineSegment(V(28, -10.3, 0), V(3, -29, 0)),  # 7
    Part.LineSegment(V(3, -29, 0), V(3, -37.6, 0)),  # 8
    Part.LineSegment(V(3, -37.6, 0), V(32.4, -37.6, 0)),  # 9
], False)
sketch13.addConstraint([
    Sketcher.Constraint("Coincident", 0, 2, 1, 1),
    Sketcher.Constraint("Coincident", 1, 2, 2, 1),
    Sketcher.Constraint("Coincident", 2, 2, 3, 1),
    Sketcher.Constraint("Coincident", 3, 2, 4, 1),
    Sketcher.Constraint("Coincident", 4, 2, 0, 1),
    Sketcher.Constraint("Coincident", 5, 2, 6, 1),
    Sketcher.Constraint("Coincident", 6, 2, 7, 1),
    Sketcher.Constraint("Coincident", 7, 2, 8, 1),
    Sketcher.Constraint("Coincident", 8, 2, 9, 1),
    Sketcher.Constraint("Coincident", 9, 2, 5, 1),
    Sketcher.Constraint("Horizontal", 1),
    Sketcher.Constraint("Vertical", 2),
    Sketcher.Constraint("Horizontal", 3),
    Sketcher.Constraint("Vertical", 4),
    Sketcher.Constraint("Vertical", 5),
    Sketcher.Constraint("Horizontal", 6),
    Sketcher.Constraint("Vertical", 8),
    Sketcher.Constraint("Horizontal", 9),
    Sketcher.Constraint("Symmetric", 1, 2, 5, 2, -1),
    Sketcher.Constraint("Symmetric", 4, 2, 7, 2, -1),
    Sketcher.Constraint("Vertical", 0, 2, 6, 2),
    Sketcher.Constraint("Equal", 2, 5),
    Sketcher.Constraint("DistanceX", -1, 1, 0, 2, 28.0),
    Sketcher.Constraint("DistanceX", -1, 1, 3, 2, 3.0),
    Sketcher.Constraint("DistanceY", -1, 1, 4, 2, 29.0),
    Sketcher.Constraint("DistanceY", 5, 2, 1, 2, 20.7),
    Sketcher.Constraint("DistanceX", 1, 1, 1, 2, 4.391457),
    Sketcher.Constraint("DistanceY", 2, 1, 2, 2, 27.267707),
])
pocket7 = body.newObject("PartDesign::Pocket", "Pocket006")
pocket7.Profile = sketch13
pocket7.Length = 18.7

# Sketch on XZ plane
sketch14 = body.newObject("Sketcher::SketchObject", "Sketch013")
sketch14.AttachmentSupport = (doc.getObject("XZ_Plane"), [""])
sketch14.MapMode = "FlatFace"
sketch14.AttachmentOffset = App.Placement(V(0, 0, -3), App.Rotation())
sketch14.addGeometry([
    Part.LineSegment(V(-21.4, -10.3, 0), V(-21.4, -6.3, 0)),  # 0
    Part.LineSegment(V(-21.4, -6.3, 0), V(-2.9, -6.3, 0)),  # 1
    Part.LineSegment(V(-2.9, -6.3, 0), V(-2.9, -10.3, 0)),  # 2
    Part.LineSegment(V(-2.9, -10.3, 0), V(-21.4, -10.3, 0)),  # 3
    Part.LineSegment(V(-21.4, 6.3, 0), V(-21.4, 10.3, 0)),  # 4
    Part.LineSegment(V(-21.4, 10.3, 0), V(-2.9, 10.3, 0)),  # 5
    Part.LineSegment(V(-2.9, 10.3, 0), V(-2.9, 6.3, 0)),  # 6
    Part.LineSegment(V(-2.9, 6.3, 0), V(-21.4, 6.3, 0)),  # 7
], False)
sketch14.addConstraint([
    Sketcher.Constraint("Coincident", 0, 2, 1, 1),
    Sketcher.Constraint("Coincident", 1, 2, 2, 1),
    Sketcher.Constraint("Coincident", 2, 2, 3, 1),
    Sketcher.Constraint("Coincident", 3, 2, 0, 1),
    Sketcher.Constraint("Coincident", 4, 2, 5, 1),
    Sketcher.Constraint("Coincident", 5, 2, 6, 1),
    Sketcher.Constraint("Coincident", 6, 2, 7, 1),
    Sketcher.Constraint("Coincident", 7, 2, 4, 1),
    Sketcher.Constraint("Vertical", 0),
    Sketcher.Constraint("Horizontal", 1),
    Sketcher.Constraint("Vertical", 2),
    Sketcher.Constraint("Horizontal", 3),
    Sketcher.Constraint("Vertical", 4),
    Sketcher.Constraint("Horizontal", 5),
    Sketcher.Constraint("Vertical", 6),
    Sketcher.Constraint("Horizontal", 7),
    Sketcher.Constraint("Symmetric", 3, 2, 4, 2, -1),
    Sketcher.Constraint("Symmetric", 1, 2, 6, 2, -1),
    Sketcher.Constraint("DistanceY", 0, 1, 0, 2, 4.0),
    Sketcher.Constraint("DistanceX", 1, 1, 1, 2, 18.45),
    Sketcher.Constraint("DistanceY", 0, 2, 4, 2, 16.7),
    Sketcher.Constraint("DistanceX", 0, 2, -1, 1, 21.375),
])
pad7 = body.newObject("PartDesign::Pad", "Pad006")
pad7.Profile = sketch14
pad7.Length = 25
pad7.Reversed = True

# Sketch on XY plane
sketch15 = body.newObject("Sketcher::SketchObject", "Sketch014")
sketch15.AttachmentSupport = (doc.getObject("XY_Plane"), [""])
sketch15.MapMode = "FlatFace"
sketch15.AttachmentOffset = App.Placement(V(0, 0, 10.35), App.Rotation())
sketch15.addGeometry([
    Part.LineSegment(V(-21.4, 3, 0), V(-2.9, 28, 0)),  # 0
    Part.LineSegment(V(-2.9, 28, 0), V(-2.9, 29.4, 0)),  # 1
    Part.LineSegment(V(-2.9, 29.4, 0), V(-27, 29.4, 0)),  # 2
    Part.LineSegment(V(-27, 29.4, 0), V(-27, 3, 0)),  # 3
    Part.LineSegment(V(-27, 3, 0), V(-21.4, 3, 0)),  # 4
], False)
sketch15.addConstraint([
    Sketcher.Constraint("Coincident", 0, 2, 1, 1),
    Sketcher.Constraint("Coincident", 1, 2, 2, 1),
    Sketcher.Constraint("Coincident", 2, 2, 3, 1),
    Sketcher.Constraint("Coincident", 3, 2, 4, 1),
    Sketcher.Constraint("Coincident", 4, 2, 0, 1),
    Sketcher.Constraint("Vertical", 1),
    Sketcher.Constraint("Horizontal", 2),
    Sketcher.Constraint("Vertical", 3),
    Sketcher.Constraint("Horizontal", 4),
    Sketcher.Constraint("DistanceY", -1, 1, 0, 2, 28.0),
    Sketcher.Constraint("DistanceY", -1, 1, 3, 2, 3.0),
    Sketcher.Constraint("DistanceX", 4, 2, 0, 2, 18.45),
    Sketcher.Constraint("DistanceX", 0, 2, -1, 1, 2.925),
    Sketcher.Constraint("DistanceX", 2, 2, 2, 1, 24.035313),
    Sketcher.Constraint("DistanceY", 1, 1, 1, 2, 1.401674),
])
pocket8 = body.newObject("PartDesign::Pocket", "Pocket007")
pocket8.Profile = sketch15
pocket8.Length = 20.7

doc.recompute()
